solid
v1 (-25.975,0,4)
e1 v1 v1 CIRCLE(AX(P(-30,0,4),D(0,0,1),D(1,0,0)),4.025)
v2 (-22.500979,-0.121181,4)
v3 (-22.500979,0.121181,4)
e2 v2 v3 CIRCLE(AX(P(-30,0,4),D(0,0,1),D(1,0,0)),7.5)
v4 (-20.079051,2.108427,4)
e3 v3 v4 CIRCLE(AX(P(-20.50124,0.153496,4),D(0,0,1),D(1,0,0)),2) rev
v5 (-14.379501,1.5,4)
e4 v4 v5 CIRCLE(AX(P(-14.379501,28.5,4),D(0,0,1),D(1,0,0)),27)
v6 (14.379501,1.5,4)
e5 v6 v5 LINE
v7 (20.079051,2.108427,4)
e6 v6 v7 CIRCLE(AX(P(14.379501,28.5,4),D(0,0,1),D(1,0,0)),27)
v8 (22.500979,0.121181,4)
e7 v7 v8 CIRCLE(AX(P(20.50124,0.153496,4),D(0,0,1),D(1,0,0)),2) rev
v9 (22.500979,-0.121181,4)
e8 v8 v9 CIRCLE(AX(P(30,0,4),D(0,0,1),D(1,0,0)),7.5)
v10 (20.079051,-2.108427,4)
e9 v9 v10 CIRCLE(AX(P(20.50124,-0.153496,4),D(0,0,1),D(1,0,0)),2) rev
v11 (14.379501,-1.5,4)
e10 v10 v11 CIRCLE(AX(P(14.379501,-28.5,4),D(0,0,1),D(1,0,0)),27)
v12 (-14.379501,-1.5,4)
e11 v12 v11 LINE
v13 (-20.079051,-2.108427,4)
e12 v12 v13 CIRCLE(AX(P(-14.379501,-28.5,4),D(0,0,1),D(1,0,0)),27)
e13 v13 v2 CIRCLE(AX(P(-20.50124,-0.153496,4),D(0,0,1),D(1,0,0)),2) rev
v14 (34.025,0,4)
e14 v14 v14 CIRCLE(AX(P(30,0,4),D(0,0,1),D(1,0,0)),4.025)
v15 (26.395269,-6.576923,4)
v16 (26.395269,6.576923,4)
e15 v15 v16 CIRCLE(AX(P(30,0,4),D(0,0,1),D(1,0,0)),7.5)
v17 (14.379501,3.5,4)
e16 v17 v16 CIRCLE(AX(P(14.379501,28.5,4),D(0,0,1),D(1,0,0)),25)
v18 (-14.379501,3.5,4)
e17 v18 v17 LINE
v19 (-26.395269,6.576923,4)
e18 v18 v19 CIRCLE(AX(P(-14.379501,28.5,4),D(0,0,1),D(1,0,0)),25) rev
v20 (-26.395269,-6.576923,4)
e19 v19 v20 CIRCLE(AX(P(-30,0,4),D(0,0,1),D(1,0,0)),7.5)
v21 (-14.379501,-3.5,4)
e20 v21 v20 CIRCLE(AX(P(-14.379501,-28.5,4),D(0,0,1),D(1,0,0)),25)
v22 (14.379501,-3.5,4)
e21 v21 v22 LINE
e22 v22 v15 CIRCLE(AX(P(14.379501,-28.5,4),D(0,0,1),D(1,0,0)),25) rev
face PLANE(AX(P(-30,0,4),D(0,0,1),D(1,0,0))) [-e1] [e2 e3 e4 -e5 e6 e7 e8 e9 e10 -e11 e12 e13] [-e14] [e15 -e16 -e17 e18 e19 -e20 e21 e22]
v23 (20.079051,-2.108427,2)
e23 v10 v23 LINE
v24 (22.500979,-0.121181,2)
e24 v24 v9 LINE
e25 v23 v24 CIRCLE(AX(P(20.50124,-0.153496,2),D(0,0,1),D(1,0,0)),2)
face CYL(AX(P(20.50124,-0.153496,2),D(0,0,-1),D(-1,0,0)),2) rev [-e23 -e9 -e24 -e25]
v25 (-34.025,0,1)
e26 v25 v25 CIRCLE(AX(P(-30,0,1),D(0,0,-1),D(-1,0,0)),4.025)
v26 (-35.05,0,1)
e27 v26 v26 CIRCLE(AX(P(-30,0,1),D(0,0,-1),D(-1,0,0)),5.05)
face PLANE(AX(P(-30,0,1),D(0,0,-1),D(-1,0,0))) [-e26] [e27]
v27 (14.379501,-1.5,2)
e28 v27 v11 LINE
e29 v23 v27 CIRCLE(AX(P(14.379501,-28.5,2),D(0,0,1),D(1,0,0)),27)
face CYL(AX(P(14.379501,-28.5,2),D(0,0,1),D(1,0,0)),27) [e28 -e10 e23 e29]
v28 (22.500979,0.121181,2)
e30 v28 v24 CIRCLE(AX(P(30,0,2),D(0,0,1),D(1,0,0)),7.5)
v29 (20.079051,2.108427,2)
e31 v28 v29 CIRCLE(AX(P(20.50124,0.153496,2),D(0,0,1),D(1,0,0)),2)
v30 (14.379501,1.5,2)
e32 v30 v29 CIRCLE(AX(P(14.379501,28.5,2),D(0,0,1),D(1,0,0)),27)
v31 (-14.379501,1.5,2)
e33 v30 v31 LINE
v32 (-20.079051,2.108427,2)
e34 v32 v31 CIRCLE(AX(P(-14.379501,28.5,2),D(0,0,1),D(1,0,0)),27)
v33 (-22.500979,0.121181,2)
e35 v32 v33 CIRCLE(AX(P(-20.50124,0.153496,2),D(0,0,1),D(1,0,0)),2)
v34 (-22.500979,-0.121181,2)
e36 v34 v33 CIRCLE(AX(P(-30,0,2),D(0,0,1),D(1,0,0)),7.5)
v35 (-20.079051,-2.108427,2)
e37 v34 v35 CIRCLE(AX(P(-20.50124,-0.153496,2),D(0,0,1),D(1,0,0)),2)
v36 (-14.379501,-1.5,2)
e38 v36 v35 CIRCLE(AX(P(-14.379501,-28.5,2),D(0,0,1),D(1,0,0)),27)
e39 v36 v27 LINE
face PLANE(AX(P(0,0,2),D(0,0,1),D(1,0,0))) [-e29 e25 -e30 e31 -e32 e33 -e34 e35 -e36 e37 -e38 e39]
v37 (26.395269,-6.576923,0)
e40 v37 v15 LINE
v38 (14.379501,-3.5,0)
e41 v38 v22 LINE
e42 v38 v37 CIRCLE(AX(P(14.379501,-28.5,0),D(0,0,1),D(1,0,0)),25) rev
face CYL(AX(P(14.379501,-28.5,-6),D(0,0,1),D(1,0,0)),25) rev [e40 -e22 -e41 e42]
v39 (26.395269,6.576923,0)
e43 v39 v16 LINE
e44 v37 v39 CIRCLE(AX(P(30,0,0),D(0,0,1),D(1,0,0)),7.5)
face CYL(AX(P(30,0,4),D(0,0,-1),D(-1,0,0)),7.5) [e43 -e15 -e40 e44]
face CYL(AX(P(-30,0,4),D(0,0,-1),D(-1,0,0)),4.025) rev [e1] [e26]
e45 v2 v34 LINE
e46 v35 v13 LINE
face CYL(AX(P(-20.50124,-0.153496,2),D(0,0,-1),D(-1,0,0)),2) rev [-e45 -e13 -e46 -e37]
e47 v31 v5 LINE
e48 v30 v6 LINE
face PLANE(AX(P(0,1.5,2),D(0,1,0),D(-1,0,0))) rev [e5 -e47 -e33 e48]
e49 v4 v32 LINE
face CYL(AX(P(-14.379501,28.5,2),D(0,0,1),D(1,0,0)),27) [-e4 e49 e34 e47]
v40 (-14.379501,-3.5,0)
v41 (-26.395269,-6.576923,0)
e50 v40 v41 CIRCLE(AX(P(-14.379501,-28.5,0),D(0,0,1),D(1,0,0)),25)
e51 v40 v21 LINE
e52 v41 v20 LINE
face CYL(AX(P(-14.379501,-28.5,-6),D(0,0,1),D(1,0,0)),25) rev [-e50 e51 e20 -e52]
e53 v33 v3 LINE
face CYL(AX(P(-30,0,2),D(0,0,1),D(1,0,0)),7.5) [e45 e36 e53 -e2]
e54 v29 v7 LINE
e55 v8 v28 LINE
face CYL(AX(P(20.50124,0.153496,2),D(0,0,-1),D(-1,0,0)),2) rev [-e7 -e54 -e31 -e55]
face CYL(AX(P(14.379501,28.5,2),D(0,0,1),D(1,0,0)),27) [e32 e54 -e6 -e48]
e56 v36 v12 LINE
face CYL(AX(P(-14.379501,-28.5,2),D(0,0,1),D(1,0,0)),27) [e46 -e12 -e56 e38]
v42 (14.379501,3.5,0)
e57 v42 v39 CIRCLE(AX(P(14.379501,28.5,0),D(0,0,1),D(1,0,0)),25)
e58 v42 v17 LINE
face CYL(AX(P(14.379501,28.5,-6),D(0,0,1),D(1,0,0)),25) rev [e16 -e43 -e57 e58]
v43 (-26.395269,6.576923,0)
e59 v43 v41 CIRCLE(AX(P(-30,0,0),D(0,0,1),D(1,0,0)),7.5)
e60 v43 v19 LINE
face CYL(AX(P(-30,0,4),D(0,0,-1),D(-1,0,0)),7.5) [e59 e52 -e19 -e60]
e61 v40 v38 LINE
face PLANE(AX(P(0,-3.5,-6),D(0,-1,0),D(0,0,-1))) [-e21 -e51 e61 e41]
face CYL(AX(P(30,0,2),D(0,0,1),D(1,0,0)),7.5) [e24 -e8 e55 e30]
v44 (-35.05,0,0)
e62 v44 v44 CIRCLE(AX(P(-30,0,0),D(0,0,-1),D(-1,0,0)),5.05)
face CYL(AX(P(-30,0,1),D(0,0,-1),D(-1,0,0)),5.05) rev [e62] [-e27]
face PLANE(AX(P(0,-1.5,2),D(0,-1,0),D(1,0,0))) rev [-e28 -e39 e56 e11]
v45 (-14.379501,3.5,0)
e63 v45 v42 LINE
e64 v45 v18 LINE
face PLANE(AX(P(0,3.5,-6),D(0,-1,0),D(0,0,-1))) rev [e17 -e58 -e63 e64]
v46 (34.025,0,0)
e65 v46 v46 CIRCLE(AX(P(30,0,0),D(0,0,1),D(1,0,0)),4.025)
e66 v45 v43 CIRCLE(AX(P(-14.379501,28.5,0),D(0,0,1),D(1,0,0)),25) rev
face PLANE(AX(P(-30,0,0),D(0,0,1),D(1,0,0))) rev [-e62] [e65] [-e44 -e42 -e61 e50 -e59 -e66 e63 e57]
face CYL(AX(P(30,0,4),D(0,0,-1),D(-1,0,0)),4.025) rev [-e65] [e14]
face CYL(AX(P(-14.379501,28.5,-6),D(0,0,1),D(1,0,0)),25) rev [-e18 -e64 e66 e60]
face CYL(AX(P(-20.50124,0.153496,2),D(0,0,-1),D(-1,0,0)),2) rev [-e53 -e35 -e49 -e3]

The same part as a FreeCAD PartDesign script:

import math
import FreeCAD as App
import Part
import Sketcher

V = App.Vector


def edges_at(feature, points):
    """Names of the edges that pass closest to the given points."""
    edges = feature.Shape.Edges
    near = lambda p: min(range(len(edges)), key=lambda i: edges[i].distToShape(Part.Vertex(*p))[0])
    return sorted({f"Edge{near(p) + 1}" for p in points})

doc = App.newDocument("Part")
body = doc.addObject("PartDesign::Body", "Body")

# Sketch on XY plane
sketch1 = body.newObject("Sketcher::SketchObject", "Sketch")
sketch1.AttachmentSupport = (doc.getObject("XY_Plane"), [""])
sketch1.MapMode = "FlatFace"
sketch1.addGeometry([
    Part.LineSegment(V(30, 7.5, 0), V(-30, 7.5, 0)),  # 0
    Part.ArcOfCircle(Part.Circle(V(-30, 0, 0), V(0, 0, 1), 7.5), math.radians(90), math.radians(270)),  # 1
    Part.LineSegment(V(-30, -7.5, 0), V(30, -7.5, 0)),  # 2
    Part.ArcOfCircle(Part.Circle(V(30, 0, 0), V(0, 0, 1), 7.5), math.radians(-90), math.radians(90)),  # 3
    Part.Circle(V(30, 0, 0), V(0, 0, 1), 4),  # 4
    Part.Circle(V(-30, 0, 0), V(0, 0, 1), 4),  # 5
], False)
sketch1.addConstraint([
    Sketcher.Constraint("Tangent", 0, 2, 1, 1),
    Sketcher.Constraint("Tangent", 1, 2, 2, 1),
    Sketcher.Constraint("Tangent", 2, 2, 3, 1),
    Sketcher.Constraint("Tangent", 3, 2, 0, 1),
    Sketcher.Constraint("Horizontal", 0),
    Sketcher.Constraint("Horizontal", 2),
    Sketcher.Constraint("Coincident", 4, 3, 3, 3),
    Sketcher.Constraint("Coincident", 5, 3, 1, 3),
    Sketcher.Constraint("Equal", 4, 5),
    Sketcher.Constraint("Symmetric", 1, 3, 3, 3, -1, 1),
    Sketcher.Constraint("Radius", 1, 7.5),
    Sketcher.Constraint("Diameter", 4, 8.05),
    Sketcher.Constraint("DistanceX", 0, 2, 0, 1, 60.0),
])
pad1 = body.newObject("PartDesign::Pad", "Pad")
pad1.Profile = sketch1
pad1.Length = 4

# Sketch on XY plane
sketch2 = body.newObject("Sketcher::SketchObject", "Sketch001")
sketch2.AttachmentSupport = (doc.getObject("XY_Plane"), [""])
sketch2.MapMode = "FlatFace"
sketch2.AttachmentOffset = App.Placement(V(0, 0, -6), App.Rotation())
sketch2.addGeometry([
    Part.ArcOfCircle(Part.Circle(V(-14.4, 28.5, 0), V(0, 0, 1), 25), math.radians(-119), math.radians(-90)),  # 0
    Part.LineSegment(V(-14.4, 3.5, 0), V(14.4, 3.5, 0)),  # 1
    Part.ArcOfCircle(Part.Circle(V(14.4, 28.5, 0), V(0, 0, 1), 25), math.radians(-90), math.radians(-61)),  # 2
    Part.ArcOfCircle(Part.Circle(V(30, 0, 0), V(0, 0, 1), 7.5), math.radians(90), math.radians(119)),  # 3
    Part.LineSegment(V(30, 7.5, 0), V(-30, 7.5, 0)),  # 4
    Part.ArcOfCircle(Part.Circle(V(-30, 0, 0), V(0, 0, 1), 7.5), math.radians(61), math.radians(90)),  # 5
    Part.ArcOfCircle(Part.Circle(V(-30, 0, 0), V(0, 0, 1), 7.5), math.radians(-90), math.radians(-61)),  # 6
    Part.LineSegment(V(-30, -7.5, 0), V(30, -7.5, 0)),  # 7
    Part.ArcOfCircle(Part.Circle(V(30, 0, 0), V(0, 0, 1), 7.5), math.radians(-119), math.radians(-90)),  # 8
    Part.ArcOfCircle(Part.Circle(V(14.4, -28.5, 0), V(0, 0, 1), 25), math.radians(61), math.radians(90)),  # 9
    Part.LineSegment(V(14.4, -3.5, 0), V(-14.4, -3.5, 0)),  # 10
    Part.ArcOfCircle(Part.Circle(V(-14.4, -28.5, 0), V(0, 0, 1), 25), math.radians(90), math.radians(119)),  # 11
], False)
sketch2.addConstraint([
    Sketcher.Constraint("Tangent", 0, 2, 1, 1),
    Sketcher.Constraint("Tangent", 1, 2, 2, 1),
    Sketcher.Constraint("Tangent", 2, 2, 3, 2),
    Sketcher.Constraint("Tangent", 3, 1, 4, 1),
    Sketcher.Constraint("Tangent", 4, 2, 5, 2),
    Sketcher.Constraint("Tangent", 5, 1, 0, 1),
    Sketcher.Constraint("Tangent", 6, 1, 7, 1),
    Sketcher.Constraint("Tangent", 7, 2, 8, 2),
    Sketcher.Constraint("Tangent", 8, 1, 9, 1),
    Sketcher.Constraint("Tangent", 9, 2, 10, 1),
    Sketcher.Constraint("Tangent", 10, 2, 11, 1),
    Sketcher.Constraint("Tangent", 11, 2, 6, 2),
    Sketcher.Constraint("Horizontal", 1),
    Sketcher.Constraint("Horizontal", 4),
    Sketcher.Constraint("Horizontal", 7),
    Sketcher.Constraint("Horizontal", 10),
    Sketcher.Constraint("Coincident", 6, 3, 5, 3),
    Sketcher.Constraint("Coincident", 8, 3, 3, 3),
    Sketcher.Constraint("Equal", 0, 2),
    Sketcher.Constraint("Equal", 3, 5),
    Sketcher.Constraint("Equal", 5, 6),
    Sketcher.Constraint("Equal", 2, 9),
    Sketcher.Constraint("Equal", 9, 11),
    Sketcher.Constraint("Symmetric", 3, 3, 5, 3, -1, 1),
    Sketcher.Constraint("Vertical", 2, 3, 9, 3),
    Sketcher.Constraint("Radius", 0, 25.0),
    Sketcher.Constraint("Radius", 3, 7.5),
    Sketcher.Constraint("DistanceX", 4, 2, 4, 1, 60.0),
    Sketcher.Constraint("DistanceY", 9, 3, 2, 3, 57.0),
])
pocket1 = body.newObject("PartDesign::Pocket", "Pocket")
pocket1.Profile = sketch2
pocket1.Length = 10
pocket1.Reversed = True

# Sketch on XY plane
sketch3 = body.newObject("Sketcher::SketchObject", "Sketch002")
sketch3.AttachmentSupport = (doc.getObject("XY_Plane"), [""])
sketch3.MapMode = "FlatFace"
sketch3.addGeometry(Part.Circle(V(-30, 0, 0), V(0, 0, 1), 5), False)
sketch3.addConstraint([
    Sketcher.Constraint("PointOnObject", 0, 3, -1),
    Sketcher.Constraint("Diameter", 0, 10.1),
    Sketcher.Constraint("DistanceX", 0, 3, -1, 1, 30.0),
])
pocket2 = body.newObject("PartDesign::Pocket", "Pocket001")
pocket2.Profile = sketch3
pocket2.Length = 1
pocket2.Reversed = True

# Sketch on XY plane
sketch4 = body.newObject("Sketcher::SketchObject", "Sketch003")
sketch4.AttachmentSupport = (doc.getObject("XY_Plane"), [""])
sketch4.MapMode = "FlatFace"
sketch4.AttachmentOffset = App.Placement(V(0, 0, 2), App.Rotation())
sketch4.addGeometry([
    Part.ArcOfCircle(Part.Circle(V(-14.4, -28.5, 0), V(0, 0, 1), 27), math.radians(90), math.radians(108.85)),  # 0
    Part.LineSegment(V(-14.4, -1.5, 0), V(14.4, -1.5, 0)),  # 1
    Part.ArcOfCircle(Part.Circle(V(14.4, -28.5, 0), V(0, 0, 1), 27), math.radians(71.15), math.radians(90)),  # 2
    Part.ArcOfCircle(Part.Circle(V(30, 0, 0), V(0, 0, 1), 7.5), math.radians(157), math.radians(203)),  # 3
    Part.ArcOfCircle(Part.Circle(V(14.4, 28.5, 0), V(0, 0, 1), 27), math.radians(-90), math.radians(-71.15)),  # 4
    Part.LineSegment(V(14.4, 1.5, 0), V(-14.4, 1.5, 0)),  # 5
    Part.ArcOfCircle(Part.Circle(V(-14.4, 28.5, 0), V(0, 0, 1), 27), math.radians(-108.85), math.radians(-90)),  # 6
    Part.ArcOfCircle(Part.Circle(V(-30, 0, 0), V(0, 0, 1), 7.5), math.radians(0), math.radians(23)),  # 7
    Part.ArcOfCircle(Part.Circle(V(-30, 0, 0), V(0, 0, 1), 7.5), math.radians(-23), math.radians(0)),  # 8
], False)
sketch4.addConstraint([
    Sketcher.Constraint("Tangent", 0, 1, 1, 1),
    Sketcher.Constraint("Tangent", 1, 2, 2, 2),
    Sketcher.Constraint("Coincident", 2, 1, 3, 2),
    Sketcher.Constraint("Coincident", 3, 1, 4, 2),
    Sketcher.Constraint("Tangent", 4, 1, 5, 1),
    Sketcher.Constraint("Tangent", 5, 2, 6, 2),
    Sketcher.Constraint("Coincident", 6, 1, 7, 2),
    Sketcher.Constraint("Tangent", 7, 1, 8, 2),
    Sketcher.Constraint("Coincident", 8, 1, 0, 2),
    Sketcher.Constraint("Horizontal", 1),
    Sketcher.Constraint("Horizontal", 5),
    Sketcher.Constraint("Equal", 0, 2),
    Sketcher.Constraint("Equal", 2, 4),
    Sketcher.Constraint("Equal", 4, 6),
    Sketcher.Constraint("Equal", 3, 7),
    Sketcher.Constraint("Equal", 7, 8),
    Sketcher.Constraint("Symmetric", 0, 3, 4, 3, -1, 1),
    Sketcher.Constraint("Symmetric", 3, 3, 7, 3, -1, 1),
    Sketcher.Constraint("Symmetric", 3, 1, 6, 1, -2),
    Sketcher.Constraint("PointOnObject", 7, 1, -1),
    Sketcher.Constraint("Horizontal", 2, 1, 8, 1),
    Sketcher.Constraint("Radius", 0, 27.0),
    Sketcher.Constraint("Radius", 3, 7.5),
    Sketcher.Constraint("DistanceX", -1, 1, 3, 3, 30.0),
    Sketcher.Constraint("DistanceY", 2, 3, 4, 3, 57.0),
    Sketcher.Constraint("DistanceX", 1, 1, 1, 2, 28.759001),
])
pocket3 = body.newObject("PartDesign::Pocket", "Pocket002")
pocket3.Profile = sketch4
pocket3.Length = 2
pocket3.Reversed = True
doc.recompute()

fillet = body.newObject("PartDesign::Fillet", "Fillet")
fillet.Base = (pocket3, edges_at(pocket3, [
    (23.104, 2.948, 3),
    (23.104, -2.948, 3),
    (-23.104, -2.948, 3),
    (-23.104, 2.948, 3),
]))
fillet.Radius = 2

doc.recompute()
